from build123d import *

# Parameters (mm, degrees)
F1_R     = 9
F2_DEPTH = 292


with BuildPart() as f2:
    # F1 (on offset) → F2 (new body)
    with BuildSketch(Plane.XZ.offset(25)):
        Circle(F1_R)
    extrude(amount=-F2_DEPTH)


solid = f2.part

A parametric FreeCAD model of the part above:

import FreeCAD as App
import Part
import Sketcher

V = App.Vector
Q = App.Units.Quantity

doc = App.newDocument("Part")
params = doc.addObject("Spreadsheet::Sheet", "Params")
for row, (alias, value) in enumerate([
    ("sketch1_diameter", "18 mm"),
    ("pad1_length", "292 mm"),
], start=1):
    params.set(f"A{row}", alias)
    params.set(f"B{row}", "=" + value)
    params.setAlias(f"B{row}", alias)

body = doc.addObject("PartDesign::Body", "Body")

# Sketch on XZ plane
sketch1 = body.newObject("Sketcher::SketchObject", "Sketch")
sketch1.AttachmentSupport = (doc.getObject("XZ_Plane"), [""])
sketch1.MapMode = "FlatFace"
sketch1.AttachmentOffset = App.Placement(V(0, 0, 25), App.Rotation())
sketch1.addGeometry(Part.Circle(V(0, 0, 0), V(0, 0, 1), 9), False)
sketch1.addConstraint([
    Sketcher.Constraint("Coincident", 0, 3, -1, 1),
    Sketcher.Constraint("Diameter", 0, Q("18 mm")),
])
sketch1.setExpression("Constraints[1]", "Params.sketch1_diameter")
pad1 = body.newObject("PartDesign::Pad", "Pad")
pad1.Profile = sketch1
pad1.setExpression("Length", "Params.pad1_length")
pad1.Reversed = True

doc.recompute()
